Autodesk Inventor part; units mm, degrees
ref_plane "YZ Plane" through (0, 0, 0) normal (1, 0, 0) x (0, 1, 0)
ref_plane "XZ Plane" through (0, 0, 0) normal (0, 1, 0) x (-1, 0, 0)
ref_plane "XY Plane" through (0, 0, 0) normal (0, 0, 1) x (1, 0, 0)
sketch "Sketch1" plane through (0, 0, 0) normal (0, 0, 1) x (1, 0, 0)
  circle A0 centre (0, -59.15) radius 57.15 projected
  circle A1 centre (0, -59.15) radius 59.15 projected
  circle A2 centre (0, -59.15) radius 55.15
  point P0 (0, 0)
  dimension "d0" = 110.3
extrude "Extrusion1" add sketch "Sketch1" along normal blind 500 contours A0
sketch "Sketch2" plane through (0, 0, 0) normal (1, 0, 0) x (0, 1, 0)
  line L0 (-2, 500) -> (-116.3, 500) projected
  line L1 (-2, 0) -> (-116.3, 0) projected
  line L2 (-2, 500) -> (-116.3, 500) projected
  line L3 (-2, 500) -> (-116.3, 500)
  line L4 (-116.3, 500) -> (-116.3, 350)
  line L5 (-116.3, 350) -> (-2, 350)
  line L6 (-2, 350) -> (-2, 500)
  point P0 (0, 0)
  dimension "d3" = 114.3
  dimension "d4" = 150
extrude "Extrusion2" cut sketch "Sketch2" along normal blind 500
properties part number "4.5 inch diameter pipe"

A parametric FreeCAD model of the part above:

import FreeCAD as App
import Part
import Sketcher
Q = App.Units.Quantity


def add_polygon(sketch, points):
    """Adds a closed chain of lines whose ends are joined by coincident constraints."""
    first, n = sketch.GeometryCount, len(points)
    for a, b in zip(points, points[1:] + points[:1]):
        sketch.addGeometry(Part.LineSegment(App.Vector(*a, 0), App.Vector(*b, 0)), False)
    for i in range(n):
        sketch.addConstraint(Sketcher.Constraint("Coincident", first + i, 2, first + (i + 1) % n, 1))

doc = App.newDocument("Part")
params = doc.addObject("Spreadsheet::Sheet", "Params")
for row, (alias, value) in enumerate([
    ("sketch1_diameter", "110.3 mm"),
    ("sketch1_diameter2", "114.3 mm"),
    ("pad1_length", "500 mm"),
    ("sketch2_height", "150 mm"),
    ("sketch2_width", "114.3 mm"),
    ("pocket1_length", "500 mm"),
], start=1):
    params.set(f"A{row}", alias)
    params.set(f"B{row}", "=" + value)
    params.setAlias(f"B{row}", alias)

body = doc.addObject("PartDesign::Body", "Body")

sketch1 = doc.addObject("Sketcher::SketchObject", "Sketch")
body.addObject(sketch1)
sketch1.AttachmentSupport = (doc.XY_Plane, [""])
sketch1.MapMode = "FlatFace"
sketch1.addGeometry([
    Part.Circle(App.Vector(0, -59.15, 0), App.Vector(0, 0, 1), 57.15),
    Part.Circle(App.Vector(0, -59.15, 0), App.Vector(0, 0, 1), 55.15),
], False)
sketch1.addConstraint([
    Sketcher.Constraint("Coincident", 1, 3, 0, 3),
    Sketcher.Constraint("PointOnObject", 0, 3, -2),
    Sketcher.Constraint("Diameter", 1, Q("110.3 mm")),
    Sketcher.Constraint("Diameter", 0, Q("114.3 mm")),
    Sketcher.Constraint("DistanceY", 0, 3, -1, 1, Q("59.15 mm")),
])
sketch1.setExpression("Constraints[2]", "Params.sketch1_diameter")
sketch1.setExpression("Constraints[3]", "Params.sketch1_diameter2")
pad1 = doc.addObject("PartDesign::Pad", "Pad")
body.addObject(pad1)
pad1.Profile = sketch1
pad1.setExpression("Length", "Params.pad1_length")

sketch2 = doc.addObject("Sketcher::SketchObject", "Sketch001")
body.addObject(sketch2)
sketch2.AttachmentSupport = (doc.YZ_Plane, [""])
sketch2.MapMode = "FlatFace"
add_polygon(sketch2, [(-2, 350), (-2, 500), (-116.3, 500), (-116.3, 350)])
sketch2.addConstraint([
    Sketcher.Constraint("Vertical", 0),
    Sketcher.Constraint("Horizontal", 1),
    Sketcher.Constraint("Vertical", 2),
    Sketcher.Constraint("Horizontal", 3),
    Sketcher.Constraint("DistanceY", 0, 1, 0, 2, Q("150 mm")),
    Sketcher.Constraint("DistanceX", 1, 2, 1, 1, Q("114.3 mm")),
    Sketcher.Constraint("DistanceX", 0, 2, -1, 1, Q("2 mm")),
    Sketcher.Constraint("DistanceY", -1, 1, 0, 2, Q("500 mm")),
])
sketch2.setExpression("Constraints[8]", "Params.sketch2_height")
sketch2.setExpression("Constraints[9]", "Params.sketch2_width")
pocket1 = doc.addObject("PartDesign::Pocket", "Pocket")
body.addObject(pocket1)
pocket1.Profile = sketch2
pocket1.setExpression("Length", "Params.pocket1_length")
pocket1.Reversed = True

doc.recompute()
